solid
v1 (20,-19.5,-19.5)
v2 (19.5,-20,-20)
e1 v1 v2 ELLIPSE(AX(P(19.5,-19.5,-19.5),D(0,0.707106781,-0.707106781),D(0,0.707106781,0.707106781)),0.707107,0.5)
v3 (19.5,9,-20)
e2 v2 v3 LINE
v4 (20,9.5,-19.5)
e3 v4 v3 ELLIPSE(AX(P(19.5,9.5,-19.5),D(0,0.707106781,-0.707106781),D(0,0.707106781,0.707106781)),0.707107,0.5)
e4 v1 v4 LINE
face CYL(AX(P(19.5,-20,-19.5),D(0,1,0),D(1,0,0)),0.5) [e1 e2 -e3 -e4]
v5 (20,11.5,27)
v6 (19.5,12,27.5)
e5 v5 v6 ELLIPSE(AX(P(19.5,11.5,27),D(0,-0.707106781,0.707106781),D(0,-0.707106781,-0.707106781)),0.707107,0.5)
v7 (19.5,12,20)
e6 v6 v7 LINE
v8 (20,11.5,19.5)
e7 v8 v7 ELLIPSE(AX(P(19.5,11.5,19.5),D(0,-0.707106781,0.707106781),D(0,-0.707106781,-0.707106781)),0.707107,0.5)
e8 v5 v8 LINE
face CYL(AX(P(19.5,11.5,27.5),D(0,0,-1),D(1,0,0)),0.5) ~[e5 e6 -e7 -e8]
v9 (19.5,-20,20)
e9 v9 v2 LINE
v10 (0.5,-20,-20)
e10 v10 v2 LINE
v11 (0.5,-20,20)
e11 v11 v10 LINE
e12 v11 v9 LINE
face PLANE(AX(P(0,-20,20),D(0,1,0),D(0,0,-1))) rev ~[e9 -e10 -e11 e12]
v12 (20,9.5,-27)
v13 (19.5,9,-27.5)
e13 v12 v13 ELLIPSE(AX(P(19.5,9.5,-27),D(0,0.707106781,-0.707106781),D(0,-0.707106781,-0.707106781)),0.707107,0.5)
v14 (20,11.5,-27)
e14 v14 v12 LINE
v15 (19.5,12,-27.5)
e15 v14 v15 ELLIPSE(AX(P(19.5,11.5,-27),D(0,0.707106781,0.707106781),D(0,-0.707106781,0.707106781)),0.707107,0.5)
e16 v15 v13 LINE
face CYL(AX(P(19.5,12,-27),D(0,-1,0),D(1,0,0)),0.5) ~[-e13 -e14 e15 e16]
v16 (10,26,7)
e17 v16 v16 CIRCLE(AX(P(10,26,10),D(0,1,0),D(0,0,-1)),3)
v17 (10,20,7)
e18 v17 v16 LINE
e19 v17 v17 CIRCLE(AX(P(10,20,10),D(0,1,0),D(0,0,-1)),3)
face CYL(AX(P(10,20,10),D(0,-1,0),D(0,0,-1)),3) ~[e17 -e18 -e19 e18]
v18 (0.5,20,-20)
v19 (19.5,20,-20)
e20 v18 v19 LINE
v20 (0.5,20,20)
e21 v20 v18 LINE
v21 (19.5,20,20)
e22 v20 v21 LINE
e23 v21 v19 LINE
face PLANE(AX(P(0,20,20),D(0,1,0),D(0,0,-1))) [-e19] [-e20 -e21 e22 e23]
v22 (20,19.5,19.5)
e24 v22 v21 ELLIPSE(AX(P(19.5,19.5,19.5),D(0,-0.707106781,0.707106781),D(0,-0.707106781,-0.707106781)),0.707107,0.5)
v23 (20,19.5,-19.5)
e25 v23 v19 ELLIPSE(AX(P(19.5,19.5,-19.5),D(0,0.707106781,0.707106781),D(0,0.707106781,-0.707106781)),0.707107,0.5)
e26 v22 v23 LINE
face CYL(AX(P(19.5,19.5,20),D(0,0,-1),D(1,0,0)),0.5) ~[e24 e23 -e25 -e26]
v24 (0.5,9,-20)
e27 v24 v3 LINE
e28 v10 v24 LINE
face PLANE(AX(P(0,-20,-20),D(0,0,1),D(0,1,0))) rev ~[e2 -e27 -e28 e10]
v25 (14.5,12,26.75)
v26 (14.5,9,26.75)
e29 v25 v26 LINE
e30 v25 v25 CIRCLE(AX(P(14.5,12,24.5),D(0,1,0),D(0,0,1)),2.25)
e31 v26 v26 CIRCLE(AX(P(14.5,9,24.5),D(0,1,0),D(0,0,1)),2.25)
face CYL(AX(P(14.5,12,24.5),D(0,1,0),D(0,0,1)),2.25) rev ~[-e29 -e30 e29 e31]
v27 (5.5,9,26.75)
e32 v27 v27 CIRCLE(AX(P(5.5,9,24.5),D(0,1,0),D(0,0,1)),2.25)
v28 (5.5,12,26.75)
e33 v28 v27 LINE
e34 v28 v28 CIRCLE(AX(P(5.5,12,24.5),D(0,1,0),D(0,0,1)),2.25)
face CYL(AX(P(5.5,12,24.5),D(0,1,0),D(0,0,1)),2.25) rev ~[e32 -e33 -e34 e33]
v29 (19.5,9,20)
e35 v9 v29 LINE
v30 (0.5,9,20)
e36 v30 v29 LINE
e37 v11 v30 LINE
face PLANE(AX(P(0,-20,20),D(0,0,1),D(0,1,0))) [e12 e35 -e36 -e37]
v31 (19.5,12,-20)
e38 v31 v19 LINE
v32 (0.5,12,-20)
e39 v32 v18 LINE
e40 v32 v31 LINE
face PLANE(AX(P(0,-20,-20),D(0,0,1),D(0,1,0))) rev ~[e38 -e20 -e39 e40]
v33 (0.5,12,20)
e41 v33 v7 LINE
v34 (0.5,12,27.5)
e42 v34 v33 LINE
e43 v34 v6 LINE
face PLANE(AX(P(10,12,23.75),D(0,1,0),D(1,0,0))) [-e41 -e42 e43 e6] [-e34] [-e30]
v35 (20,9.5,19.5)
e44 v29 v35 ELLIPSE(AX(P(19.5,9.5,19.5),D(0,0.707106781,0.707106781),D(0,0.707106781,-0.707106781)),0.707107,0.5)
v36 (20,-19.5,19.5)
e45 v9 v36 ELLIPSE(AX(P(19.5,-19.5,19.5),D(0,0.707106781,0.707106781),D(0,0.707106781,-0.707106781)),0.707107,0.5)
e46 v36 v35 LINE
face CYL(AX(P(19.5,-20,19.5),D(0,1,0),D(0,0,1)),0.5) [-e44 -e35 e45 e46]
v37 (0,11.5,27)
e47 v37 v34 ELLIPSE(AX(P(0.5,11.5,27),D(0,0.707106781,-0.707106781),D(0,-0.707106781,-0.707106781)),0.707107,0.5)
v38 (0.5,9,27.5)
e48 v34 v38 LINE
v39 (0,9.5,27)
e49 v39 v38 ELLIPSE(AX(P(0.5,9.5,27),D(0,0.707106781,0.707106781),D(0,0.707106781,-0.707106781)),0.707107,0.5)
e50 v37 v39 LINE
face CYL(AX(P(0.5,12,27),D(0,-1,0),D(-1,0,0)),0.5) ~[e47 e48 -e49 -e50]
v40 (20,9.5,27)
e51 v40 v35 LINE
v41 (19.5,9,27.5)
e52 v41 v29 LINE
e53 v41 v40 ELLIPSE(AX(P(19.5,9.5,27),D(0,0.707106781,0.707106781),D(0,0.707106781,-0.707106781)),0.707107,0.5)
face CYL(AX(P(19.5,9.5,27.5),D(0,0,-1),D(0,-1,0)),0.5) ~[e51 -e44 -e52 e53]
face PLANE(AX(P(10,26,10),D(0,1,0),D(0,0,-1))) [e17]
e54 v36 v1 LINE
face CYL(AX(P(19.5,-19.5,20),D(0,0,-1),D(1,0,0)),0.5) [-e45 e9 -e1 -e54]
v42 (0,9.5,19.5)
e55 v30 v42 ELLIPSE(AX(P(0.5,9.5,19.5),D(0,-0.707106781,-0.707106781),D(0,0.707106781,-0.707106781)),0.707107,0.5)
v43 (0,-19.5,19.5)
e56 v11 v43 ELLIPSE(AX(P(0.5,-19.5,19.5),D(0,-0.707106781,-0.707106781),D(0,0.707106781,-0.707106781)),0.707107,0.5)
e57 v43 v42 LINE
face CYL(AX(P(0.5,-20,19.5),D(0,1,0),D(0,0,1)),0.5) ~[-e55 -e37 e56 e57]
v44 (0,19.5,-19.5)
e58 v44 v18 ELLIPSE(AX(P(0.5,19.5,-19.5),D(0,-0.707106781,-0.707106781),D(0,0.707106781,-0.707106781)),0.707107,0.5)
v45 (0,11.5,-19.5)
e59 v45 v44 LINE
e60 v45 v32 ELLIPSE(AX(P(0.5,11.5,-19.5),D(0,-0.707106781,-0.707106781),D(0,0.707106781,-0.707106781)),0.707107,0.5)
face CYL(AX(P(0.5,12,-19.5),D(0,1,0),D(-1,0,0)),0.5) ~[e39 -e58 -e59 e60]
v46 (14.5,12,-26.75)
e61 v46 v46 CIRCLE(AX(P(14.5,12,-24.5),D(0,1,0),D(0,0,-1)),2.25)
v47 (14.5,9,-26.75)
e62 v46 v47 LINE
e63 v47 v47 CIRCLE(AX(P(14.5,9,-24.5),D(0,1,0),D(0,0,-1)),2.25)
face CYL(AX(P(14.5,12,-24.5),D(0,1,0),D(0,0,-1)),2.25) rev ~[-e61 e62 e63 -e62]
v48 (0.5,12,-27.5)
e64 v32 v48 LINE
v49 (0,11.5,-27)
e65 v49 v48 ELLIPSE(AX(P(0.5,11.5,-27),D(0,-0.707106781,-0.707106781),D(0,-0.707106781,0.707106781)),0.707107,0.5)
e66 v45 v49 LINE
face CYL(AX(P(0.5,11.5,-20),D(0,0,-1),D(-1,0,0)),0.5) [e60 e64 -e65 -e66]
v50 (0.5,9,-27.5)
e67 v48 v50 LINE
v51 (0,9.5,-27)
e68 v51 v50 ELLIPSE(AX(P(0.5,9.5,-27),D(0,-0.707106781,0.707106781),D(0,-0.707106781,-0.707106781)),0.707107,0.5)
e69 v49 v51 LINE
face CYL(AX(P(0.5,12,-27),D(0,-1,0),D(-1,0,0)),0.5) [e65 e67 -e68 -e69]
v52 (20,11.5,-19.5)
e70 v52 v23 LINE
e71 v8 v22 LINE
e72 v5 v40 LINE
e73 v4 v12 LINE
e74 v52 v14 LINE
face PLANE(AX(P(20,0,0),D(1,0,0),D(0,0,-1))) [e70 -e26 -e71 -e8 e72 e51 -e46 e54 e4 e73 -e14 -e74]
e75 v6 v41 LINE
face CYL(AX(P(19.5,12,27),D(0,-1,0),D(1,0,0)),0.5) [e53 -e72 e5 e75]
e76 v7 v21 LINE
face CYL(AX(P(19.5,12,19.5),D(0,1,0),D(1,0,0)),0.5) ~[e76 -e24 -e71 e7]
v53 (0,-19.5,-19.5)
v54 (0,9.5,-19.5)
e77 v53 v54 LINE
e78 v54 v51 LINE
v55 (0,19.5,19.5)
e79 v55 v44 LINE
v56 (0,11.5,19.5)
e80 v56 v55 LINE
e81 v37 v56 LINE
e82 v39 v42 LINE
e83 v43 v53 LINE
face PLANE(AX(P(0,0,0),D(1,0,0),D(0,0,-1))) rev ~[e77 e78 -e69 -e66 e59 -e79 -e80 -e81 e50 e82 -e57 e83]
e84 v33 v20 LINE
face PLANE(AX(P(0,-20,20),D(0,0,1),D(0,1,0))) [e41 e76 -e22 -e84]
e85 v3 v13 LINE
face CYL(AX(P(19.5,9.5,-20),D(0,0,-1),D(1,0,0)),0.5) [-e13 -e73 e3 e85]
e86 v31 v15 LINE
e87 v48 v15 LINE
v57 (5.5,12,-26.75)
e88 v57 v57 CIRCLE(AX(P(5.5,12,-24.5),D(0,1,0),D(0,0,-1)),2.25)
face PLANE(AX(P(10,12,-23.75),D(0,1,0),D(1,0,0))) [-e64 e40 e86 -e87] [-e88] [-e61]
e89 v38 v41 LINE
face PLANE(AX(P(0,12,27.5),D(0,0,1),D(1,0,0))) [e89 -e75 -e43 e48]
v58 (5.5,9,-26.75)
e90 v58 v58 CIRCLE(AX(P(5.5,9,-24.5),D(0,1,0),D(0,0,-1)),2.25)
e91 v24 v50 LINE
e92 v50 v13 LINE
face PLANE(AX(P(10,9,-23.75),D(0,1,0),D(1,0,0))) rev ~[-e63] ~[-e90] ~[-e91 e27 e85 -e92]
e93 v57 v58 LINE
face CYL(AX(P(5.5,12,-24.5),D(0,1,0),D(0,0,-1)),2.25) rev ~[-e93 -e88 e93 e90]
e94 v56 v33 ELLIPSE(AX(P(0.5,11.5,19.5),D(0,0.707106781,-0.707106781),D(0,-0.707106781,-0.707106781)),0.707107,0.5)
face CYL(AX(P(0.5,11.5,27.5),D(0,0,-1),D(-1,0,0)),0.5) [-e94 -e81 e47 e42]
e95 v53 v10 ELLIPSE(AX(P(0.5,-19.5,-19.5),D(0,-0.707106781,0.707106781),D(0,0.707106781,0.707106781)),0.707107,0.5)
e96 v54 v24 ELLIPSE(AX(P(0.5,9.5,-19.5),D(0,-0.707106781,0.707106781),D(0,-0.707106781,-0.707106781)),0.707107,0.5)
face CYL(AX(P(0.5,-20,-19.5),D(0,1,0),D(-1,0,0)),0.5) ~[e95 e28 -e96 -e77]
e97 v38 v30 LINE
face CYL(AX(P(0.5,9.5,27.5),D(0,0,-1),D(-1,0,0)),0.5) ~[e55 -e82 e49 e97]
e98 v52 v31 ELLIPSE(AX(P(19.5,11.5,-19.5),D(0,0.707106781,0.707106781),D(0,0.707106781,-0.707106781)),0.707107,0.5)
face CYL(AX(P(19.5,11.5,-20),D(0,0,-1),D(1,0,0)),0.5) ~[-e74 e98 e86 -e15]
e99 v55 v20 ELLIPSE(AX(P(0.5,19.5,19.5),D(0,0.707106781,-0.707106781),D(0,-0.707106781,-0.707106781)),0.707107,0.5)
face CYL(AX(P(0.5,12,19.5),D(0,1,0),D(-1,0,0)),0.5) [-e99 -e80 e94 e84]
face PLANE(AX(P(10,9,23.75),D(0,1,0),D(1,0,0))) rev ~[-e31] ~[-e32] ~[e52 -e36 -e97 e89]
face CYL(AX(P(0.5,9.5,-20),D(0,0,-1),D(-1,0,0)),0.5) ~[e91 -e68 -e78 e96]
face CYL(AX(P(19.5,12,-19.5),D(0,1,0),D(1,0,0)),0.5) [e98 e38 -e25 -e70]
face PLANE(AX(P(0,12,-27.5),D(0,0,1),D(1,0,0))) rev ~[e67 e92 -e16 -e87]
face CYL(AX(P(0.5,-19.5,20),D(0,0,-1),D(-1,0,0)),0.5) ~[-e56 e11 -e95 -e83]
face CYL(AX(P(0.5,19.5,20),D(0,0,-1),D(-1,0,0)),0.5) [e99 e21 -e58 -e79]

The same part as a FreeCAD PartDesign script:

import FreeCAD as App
import Part
import Sketcher
Q = App.Units.Quantity


def edges_at(feature, points):
    """Names of the edges that pass closest to the given points."""
    edges = feature.Shape.Edges
    near = lambda p: min(range(len(edges)), key=lambda i: edges[i].distToShape(Part.Vertex(*p))[0])
    return sorted({f"Edge{near(p) + 1}" for p in points})


def add_polygon(sketch, points):
    """Adds a closed chain of lines whose ends are joined by coincident constraints."""
    first, n = sketch.GeometryCount, len(points)
    for a, b in zip(points, points[1:] + points[:1]):
        sketch.addGeometry(Part.LineSegment(App.Vector(*a, 0), App.Vector(*b, 0)), False)
    for i in range(n):
        sketch.addConstraint(Sketcher.Constraint("Coincident", first + i, 2, first + (i + 1) % n, 1))

doc = App.newDocument("Part")
body = doc.addObject("PartDesign::Body", "Body")

sketch1 = body.newObject("Sketcher::SketchObject", "Sketch")
sketch1.AttachmentSupport = (doc.getObject("YZ_Plane"), [""])
sketch1.MapMode = "FlatFace"
add_polygon(sketch1, [(20, 20), (-20, 20), (-20, -20), (20, -20)])
sketch1.addConstraint(Sketcher.Constraint("Horizontal", 0))
sketch1.addConstraint(Sketcher.Constraint("Vertical", 1))
sketch1.addConstraint(Sketcher.Constraint("Horizontal", 2))
sketch1.addConstraint(Sketcher.Constraint("Vertical", 3))
sketch1.addConstraint(Sketcher.Constraint("Symmetric", 0, 2, 2, 2, -1, 1))
sketch1.addConstraint(Sketcher.Constraint("Equal", 2, 1))
sketch1.addConstraint(Sketcher.Constraint("DistanceX", 0, 2, 0, 1, Q("40 mm")))
pad1 = body.newObject("PartDesign::Pad", "Pad")
pad1.Profile = sketch1
pad1.Length = 20

sketch2 = body.newObject("Sketcher::SketchObject", "Sketch001")
sketch2.AttachmentSupport = (doc.getObject("XZ_Plane"), [""])
sketch2.MapMode = "FlatFace"
sketch2.AttachmentOffset = App.Placement(App.Vector(0, 0, -20), App.Rotation())
sketch2.addGeometry(Part.Circle(App.Vector(10, 10, 0), App.Vector(0, 0, 1), 3), False)
sketch2.addConstraint(Sketcher.Constraint("Diameter", 0, Q("6 mm")))
sketch2.addConstraint(Sketcher.Constraint("DistanceX", -1, 1, 0, 3, Q("10 mm")))
sketch2.addConstraint(Sketcher.Constraint("DistanceY", -1, 1, 0, 3, Q("10 mm")))
pad2 = body.newObject("PartDesign::Pad", "Pad001")
pad2.Profile = sketch2
pad2.Length = 6
pad2.Reversed = True

sketch3 = body.newObject("Sketcher::SketchObject", "Sketch002")
sketch3.AttachmentSupport = (doc.getObject("XZ_Plane"), [""])
sketch3.MapMode = "FlatFace"
sketch3.AttachmentOffset = App.Placement(App.Vector(0, 0, -12), App.Rotation())
add_polygon(sketch3, [(0, 20), (0, 28), (20, 28), (20, 20)])
add_polygon(sketch3, [(0, -28), (0, -20), (20, -20), (20, -28)])
sketch3.addConstraint(Sketcher.Constraint("Vertical", 0))
sketch3.addConstraint(Sketcher.Constraint("Horizontal", 1))
sketch3.addConstraint(Sketcher.Constraint("Vertical", 2))
sketch3.addConstraint(Sketcher.Constraint("Horizontal", 3))
sketch3.addConstraint(Sketcher.Constraint("Vertical", 4))
sketch3.addConstraint(Sketcher.Constraint("Horizontal", 5))
sketch3.addConstraint(Sketcher.Constraint("Vertical", 6))
sketch3.addConstraint(Sketcher.Constraint("Horizontal", 7))
sketch3.addConstraint(Sketcher.Constraint("Symmetric", 3, 2, 4, 2, -1, 1))
sketch3.addConstraint(Sketcher.Constraint("Symmetric", 1, 2, 6, 2, -1))
sketch3.addConstraint(Sketcher.Constraint("PointOnObject", 0, 2, -2))
sketch3.addConstraint(Sketcher.Constraint("DistanceX", 1, 1, 1, 2, Q("20 mm")))
sketch3.addConstraint(Sketcher.Constraint("DistanceY", 0, 1, 0, 2, Q("7.5 mm")))
sketch3.addConstraint(Sketcher.Constraint("DistanceY", -1, 1, 2, 2, Q("20 mm")))
pad3 = body.newObject("PartDesign::Pad", "Pad002")
pad3.Profile = sketch3
pad3.Length = 3

sketch4 = body.newObject("Sketcher::SketchObject", "Sketch003")
sketch4.AttachmentSupport = (doc.getObject("XZ_Plane"), [""])
sketch4.MapMode = "FlatFace"
sketch4.AttachmentOffset = App.Placement(App.Vector(0, 0, -12), App.Rotation())
sketch4.addGeometry(Part.Circle(App.Vector(14.5, 24.5, 0), App.Vector(0, 0, 1), 2.2), False)
sketch4.addGeometry(Part.Circle(App.Vector(5.5, 24.5, 0), App.Vector(0, 0, 1), 2.2), False)
sketch4.addGeometry(Part.Circle(App.Vector(5.5, -24.5, 0), App.Vector(0, 0, 1), 2.2), False)
sketch4.addGeometry(Part.Circle(App.Vector(14.5, -24.5, 0), App.Vector(0, 0, 1), 2.2), False)
sketch4.addConstraint(Sketcher.Constraint("Equal", 0, 1))
sketch4.addConstraint(Sketcher.Constraint("Equal", 1, 2))
sketch4.addConstraint(Sketcher.Constraint("Equal", 2, 3))
sketch4.addConstraint(Sketcher.Constraint("Symmetric", 1, 3, 2, 3, -1))
sketch4.addConstraint(Sketcher.Constraint("Symmetric", 0, 3, 3, 3, -1))
sketch4.addConstraint(Sketcher.Constraint("Horizontal", 0, 3, 1, 3))
sketch4.addConstraint(Sketcher.Constraint("Diameter", 0, Q("4.5 mm")))
sketch4.addConstraint(Sketcher.Constraint("DistanceX", 1, 3, 0, 3, Q("9 mm")))
sketch4.addConstraint(Sketcher.Constraint("DistanceY", 2, 3, 1, 3, Q("49 mm")))
sketch4.addConstraint(Sketcher.Constraint("DistanceX", -1, 1, 0, 3, Q("14.5 mm")))
pocket1 = body.newObject("PartDesign::Pocket", "Pocket")
pocket1.Profile = sketch4
pocket1.Length = 3
pocket1.Reversed = True
doc.recompute()

fillet = body.newObject("PartDesign::Fillet", "Fillet")
fillet.Base = (pocket1, edges_at(pocket1, [
    (20, -5.5, -20),
    (20, 20, 0),
    (0, 16, -20),
    (20, 16, -20),
    (0, -5.5, 20),
    (20, -5.5, 20),
    (0, 9, 23.75),
    (0, 10.5, 27.5),
    (20, 9, 23.75),
    (20, 10.5, 27.5),
    (0, 12, 23.75),
    (20, 12, 23.75),
    (0, 9, -23.75),
    (0, 10.5, -27.5),
    (20, 9, -23.75),
    (20, 10.5, -27.5),
    (0, 12, -23.75),
    (20, 12, -23.75),
    (20, 16, 20),
    (0, 20, 0),
    (0, -5.5, -20),
    (0, -20, 0),
    (0, 16, 20),
    (20, -20, 0),
]))
fillet.Radius = 0.5

doc.recompute()
